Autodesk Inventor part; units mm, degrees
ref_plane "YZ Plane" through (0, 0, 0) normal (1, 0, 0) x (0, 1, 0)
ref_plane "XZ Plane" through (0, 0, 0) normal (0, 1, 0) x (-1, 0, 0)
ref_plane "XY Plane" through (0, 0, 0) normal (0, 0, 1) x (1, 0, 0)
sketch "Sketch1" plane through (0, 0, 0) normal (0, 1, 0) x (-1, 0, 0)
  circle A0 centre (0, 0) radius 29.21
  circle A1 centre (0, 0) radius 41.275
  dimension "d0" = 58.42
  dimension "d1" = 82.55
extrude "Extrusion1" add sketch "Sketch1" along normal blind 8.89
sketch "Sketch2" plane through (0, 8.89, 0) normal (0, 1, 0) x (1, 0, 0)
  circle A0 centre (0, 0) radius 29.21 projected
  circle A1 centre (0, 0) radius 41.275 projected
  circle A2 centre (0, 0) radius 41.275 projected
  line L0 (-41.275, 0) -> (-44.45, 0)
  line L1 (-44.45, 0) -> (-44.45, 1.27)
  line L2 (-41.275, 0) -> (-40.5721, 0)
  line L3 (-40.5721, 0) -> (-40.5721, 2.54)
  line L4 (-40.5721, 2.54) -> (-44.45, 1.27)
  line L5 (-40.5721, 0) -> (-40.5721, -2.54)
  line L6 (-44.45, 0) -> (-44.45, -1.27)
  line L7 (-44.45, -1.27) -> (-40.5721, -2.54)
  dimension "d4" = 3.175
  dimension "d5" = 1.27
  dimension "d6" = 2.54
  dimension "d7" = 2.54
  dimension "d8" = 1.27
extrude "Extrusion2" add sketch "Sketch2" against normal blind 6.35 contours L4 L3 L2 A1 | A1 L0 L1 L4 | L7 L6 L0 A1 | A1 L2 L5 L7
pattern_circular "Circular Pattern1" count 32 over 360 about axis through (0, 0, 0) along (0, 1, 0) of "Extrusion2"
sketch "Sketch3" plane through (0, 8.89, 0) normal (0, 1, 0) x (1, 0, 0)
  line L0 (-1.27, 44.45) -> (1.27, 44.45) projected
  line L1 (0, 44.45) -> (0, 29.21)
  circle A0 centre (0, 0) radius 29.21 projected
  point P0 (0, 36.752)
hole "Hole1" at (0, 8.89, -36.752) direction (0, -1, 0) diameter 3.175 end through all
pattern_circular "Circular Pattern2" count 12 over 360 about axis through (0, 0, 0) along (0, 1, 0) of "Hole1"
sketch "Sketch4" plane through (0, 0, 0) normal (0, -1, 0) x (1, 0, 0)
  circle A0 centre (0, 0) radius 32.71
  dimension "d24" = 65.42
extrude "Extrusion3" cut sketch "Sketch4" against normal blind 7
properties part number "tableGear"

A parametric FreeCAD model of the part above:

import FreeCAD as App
import Part
import Sketcher
Q = App.Units.Quantity


def add_polygon(sketch, points):
    """Adds a closed chain of lines whose ends are joined by coincident constraints."""
    first, n = sketch.GeometryCount, len(points)
    for a, b in zip(points, points[1:] + points[:1]):
        sketch.addGeometry(Part.LineSegment(App.Vector(*a, 0), App.Vector(*b, 0)), False)
    for i in range(n):
        sketch.addConstraint(Sketcher.Constraint("Coincident", first + i, 2, first + (i + 1) % n, 1))

doc = App.newDocument("Part")
body = doc.addObject("PartDesign::Body", "Body")

# Sketch on XZ plane
sketch1 = doc.addObject("Sketcher::SketchObject", "Sketch")
body.addObject(sketch1)
sketch1.AttachmentSupport = (doc.XZ_Plane, [""])
sketch1.MapMode = "FlatFace"
sketch1.addGeometry(Part.Circle(App.Vector(0, 0, 0), App.Vector(0, 0, 1), 41), False)
sketch1.addGeometry(Part.Circle(App.Vector(0, 0, 0), App.Vector(0, 0, 1), 29), False)
sketch1.addConstraint(Sketcher.Constraint("Coincident", 0, 3, -1, 1))
sketch1.addConstraint(Sketcher.Constraint("Coincident", 1, 3, -1, 1))
sketch1.addConstraint(Sketcher.Constraint("Diameter", 1, Q("2.3 in")))
sketch1.addConstraint(Sketcher.Constraint("Diameter", 0, Q("3.25 in")))
pad1 = doc.addObject("PartDesign::Pad", "Pad")
body.addObject(pad1)
pad1.Profile = sketch1
pad1.Length = Q("0.35 in")
pad1.Reversed = True

# Sketch on XZ plane
sketch2 = doc.addObject("Sketcher::SketchObject", "Sketch001")
body.addObject(sketch2)
sketch2.AttachmentSupport = (doc.XZ_Plane, [""])
sketch2.MapMode = "FlatFace"
sketch2.AttachmentOffset = App.Placement(App.Vector(0, 0, -0.35 * 25.4), App.Rotation())
add_polygon(sketch2, [(-40.6, -2.5), (-44.5, -1.3), (-44.5, 1.3), (-40.6, 2.5)])  # lines 0-3
sketch2.addConstraint(Sketcher.Constraint("Vertical", 1))
sketch2.addConstraint(Sketcher.Constraint("Vertical", 3))
sketch2.addConstraint(Sketcher.Constraint("Equal", 0, 2))
sketch2.addConstraint(Sketcher.Constraint("DistanceY", 1, 1, 1, 2, Q("0.1 in")))
sketch2.addConstraint(Sketcher.Constraint("DistanceY", -1, 1, 2, 2, Q("0.1 in")))
sketch2.addConstraint(Sketcher.Constraint("DistanceY", 3, 2, -1, 1, Q("0.1 in")))
sketch2.addConstraint(Sketcher.Constraint("DistanceX", 0, 2, -1, 1, Q("1.75 in")))
sketch2.addConstraint(Sketcher.Constraint("Distance", 0, 4.0806))
pad2 = doc.addObject("PartDesign::Pad", "Pad001")
body.addObject(pad2)
pad2.Profile = sketch2
pad2.Length = Q("0.25 in")
doc.recompute()

polarpattern = doc.addObject("PartDesign::PolarPattern", "PolarPattern")
body.addObject(polarpattern)
polarpattern.Originals = [pad2]
polarpattern.Axis = (doc.Y_Axis, [""])
polarpattern.Angle = 360
polarpattern.Occurrences = 32
body.Tip = polarpattern

# Sketch on XZ plane
sketch3 = doc.addObject("Sketcher::SketchObject", "Sketch002")
body.addObject(sketch3)
sketch3.AttachmentSupport = (doc.XZ_Plane, [""])
sketch3.MapMode = "FlatFace"
sketch3.AttachmentOffset = App.Placement(App.Vector(0, 0, -0.35 * 25.4), App.Rotation())
sketch3.addGeometry(Part.Circle(App.Vector(0, -36.8, 0), App.Vector(0, 0, 1), 1.6), False)
sketch3.addConstraint(Sketcher.Constraint("PointOnObject", 0, 3, -2))
sketch3.addConstraint(Sketcher.Constraint("Diameter", 0, Q("0.125 in")))
sketch3.addConstraint(Sketcher.Constraint("DistanceY", 0, 3, -1, 1, 36.752))
doc.recompute()
hole = doc.addObject("PartDesign::Hole", "Hole")
body.addObject(hole)
hole.Profile = sketch3
hole.ThreadType = "None"
hole.Diameter = Q("0.125 in")
hole.DepthType = "ThroughAll"
hole.Reversed = True
doc.recompute()

polarpattern2 = doc.addObject("PartDesign::PolarPattern", "PolarPattern001")
body.addObject(polarpattern2)
polarpattern2.Originals = [hole]
polarpattern2.Axis = (doc.Y_Axis, [""])
polarpattern2.Angle = 360
polarpattern2.Occurrences = 12
body.Tip = polarpattern2

# Sketch on XZ plane
sketch4 = doc.addObject("Sketcher::SketchObject", "Sketch003")
body.addObject(sketch4)
sketch4.AttachmentSupport = (doc.XZ_Plane, [""])
sketch4.MapMode = "FlatFace"
sketch4.addGeometry(Part.Circle(App.Vector(0, 0, 0), App.Vector(0, 0, 1), 33), False)
sketch4.addConstraint(Sketcher.Constraint("Coincident", 0, 3, -1, 1))
sketch4.addConstraint(Sketcher.Constraint("Diameter", 0, Q("2.5756 in")))
pocket1 = doc.addObject("PartDesign::Pocket", "Pocket")
body.addObject(pocket1)
pocket1.Profile = sketch4
pocket1.Length = Q("0.2755906 in")

doc.recompute()
